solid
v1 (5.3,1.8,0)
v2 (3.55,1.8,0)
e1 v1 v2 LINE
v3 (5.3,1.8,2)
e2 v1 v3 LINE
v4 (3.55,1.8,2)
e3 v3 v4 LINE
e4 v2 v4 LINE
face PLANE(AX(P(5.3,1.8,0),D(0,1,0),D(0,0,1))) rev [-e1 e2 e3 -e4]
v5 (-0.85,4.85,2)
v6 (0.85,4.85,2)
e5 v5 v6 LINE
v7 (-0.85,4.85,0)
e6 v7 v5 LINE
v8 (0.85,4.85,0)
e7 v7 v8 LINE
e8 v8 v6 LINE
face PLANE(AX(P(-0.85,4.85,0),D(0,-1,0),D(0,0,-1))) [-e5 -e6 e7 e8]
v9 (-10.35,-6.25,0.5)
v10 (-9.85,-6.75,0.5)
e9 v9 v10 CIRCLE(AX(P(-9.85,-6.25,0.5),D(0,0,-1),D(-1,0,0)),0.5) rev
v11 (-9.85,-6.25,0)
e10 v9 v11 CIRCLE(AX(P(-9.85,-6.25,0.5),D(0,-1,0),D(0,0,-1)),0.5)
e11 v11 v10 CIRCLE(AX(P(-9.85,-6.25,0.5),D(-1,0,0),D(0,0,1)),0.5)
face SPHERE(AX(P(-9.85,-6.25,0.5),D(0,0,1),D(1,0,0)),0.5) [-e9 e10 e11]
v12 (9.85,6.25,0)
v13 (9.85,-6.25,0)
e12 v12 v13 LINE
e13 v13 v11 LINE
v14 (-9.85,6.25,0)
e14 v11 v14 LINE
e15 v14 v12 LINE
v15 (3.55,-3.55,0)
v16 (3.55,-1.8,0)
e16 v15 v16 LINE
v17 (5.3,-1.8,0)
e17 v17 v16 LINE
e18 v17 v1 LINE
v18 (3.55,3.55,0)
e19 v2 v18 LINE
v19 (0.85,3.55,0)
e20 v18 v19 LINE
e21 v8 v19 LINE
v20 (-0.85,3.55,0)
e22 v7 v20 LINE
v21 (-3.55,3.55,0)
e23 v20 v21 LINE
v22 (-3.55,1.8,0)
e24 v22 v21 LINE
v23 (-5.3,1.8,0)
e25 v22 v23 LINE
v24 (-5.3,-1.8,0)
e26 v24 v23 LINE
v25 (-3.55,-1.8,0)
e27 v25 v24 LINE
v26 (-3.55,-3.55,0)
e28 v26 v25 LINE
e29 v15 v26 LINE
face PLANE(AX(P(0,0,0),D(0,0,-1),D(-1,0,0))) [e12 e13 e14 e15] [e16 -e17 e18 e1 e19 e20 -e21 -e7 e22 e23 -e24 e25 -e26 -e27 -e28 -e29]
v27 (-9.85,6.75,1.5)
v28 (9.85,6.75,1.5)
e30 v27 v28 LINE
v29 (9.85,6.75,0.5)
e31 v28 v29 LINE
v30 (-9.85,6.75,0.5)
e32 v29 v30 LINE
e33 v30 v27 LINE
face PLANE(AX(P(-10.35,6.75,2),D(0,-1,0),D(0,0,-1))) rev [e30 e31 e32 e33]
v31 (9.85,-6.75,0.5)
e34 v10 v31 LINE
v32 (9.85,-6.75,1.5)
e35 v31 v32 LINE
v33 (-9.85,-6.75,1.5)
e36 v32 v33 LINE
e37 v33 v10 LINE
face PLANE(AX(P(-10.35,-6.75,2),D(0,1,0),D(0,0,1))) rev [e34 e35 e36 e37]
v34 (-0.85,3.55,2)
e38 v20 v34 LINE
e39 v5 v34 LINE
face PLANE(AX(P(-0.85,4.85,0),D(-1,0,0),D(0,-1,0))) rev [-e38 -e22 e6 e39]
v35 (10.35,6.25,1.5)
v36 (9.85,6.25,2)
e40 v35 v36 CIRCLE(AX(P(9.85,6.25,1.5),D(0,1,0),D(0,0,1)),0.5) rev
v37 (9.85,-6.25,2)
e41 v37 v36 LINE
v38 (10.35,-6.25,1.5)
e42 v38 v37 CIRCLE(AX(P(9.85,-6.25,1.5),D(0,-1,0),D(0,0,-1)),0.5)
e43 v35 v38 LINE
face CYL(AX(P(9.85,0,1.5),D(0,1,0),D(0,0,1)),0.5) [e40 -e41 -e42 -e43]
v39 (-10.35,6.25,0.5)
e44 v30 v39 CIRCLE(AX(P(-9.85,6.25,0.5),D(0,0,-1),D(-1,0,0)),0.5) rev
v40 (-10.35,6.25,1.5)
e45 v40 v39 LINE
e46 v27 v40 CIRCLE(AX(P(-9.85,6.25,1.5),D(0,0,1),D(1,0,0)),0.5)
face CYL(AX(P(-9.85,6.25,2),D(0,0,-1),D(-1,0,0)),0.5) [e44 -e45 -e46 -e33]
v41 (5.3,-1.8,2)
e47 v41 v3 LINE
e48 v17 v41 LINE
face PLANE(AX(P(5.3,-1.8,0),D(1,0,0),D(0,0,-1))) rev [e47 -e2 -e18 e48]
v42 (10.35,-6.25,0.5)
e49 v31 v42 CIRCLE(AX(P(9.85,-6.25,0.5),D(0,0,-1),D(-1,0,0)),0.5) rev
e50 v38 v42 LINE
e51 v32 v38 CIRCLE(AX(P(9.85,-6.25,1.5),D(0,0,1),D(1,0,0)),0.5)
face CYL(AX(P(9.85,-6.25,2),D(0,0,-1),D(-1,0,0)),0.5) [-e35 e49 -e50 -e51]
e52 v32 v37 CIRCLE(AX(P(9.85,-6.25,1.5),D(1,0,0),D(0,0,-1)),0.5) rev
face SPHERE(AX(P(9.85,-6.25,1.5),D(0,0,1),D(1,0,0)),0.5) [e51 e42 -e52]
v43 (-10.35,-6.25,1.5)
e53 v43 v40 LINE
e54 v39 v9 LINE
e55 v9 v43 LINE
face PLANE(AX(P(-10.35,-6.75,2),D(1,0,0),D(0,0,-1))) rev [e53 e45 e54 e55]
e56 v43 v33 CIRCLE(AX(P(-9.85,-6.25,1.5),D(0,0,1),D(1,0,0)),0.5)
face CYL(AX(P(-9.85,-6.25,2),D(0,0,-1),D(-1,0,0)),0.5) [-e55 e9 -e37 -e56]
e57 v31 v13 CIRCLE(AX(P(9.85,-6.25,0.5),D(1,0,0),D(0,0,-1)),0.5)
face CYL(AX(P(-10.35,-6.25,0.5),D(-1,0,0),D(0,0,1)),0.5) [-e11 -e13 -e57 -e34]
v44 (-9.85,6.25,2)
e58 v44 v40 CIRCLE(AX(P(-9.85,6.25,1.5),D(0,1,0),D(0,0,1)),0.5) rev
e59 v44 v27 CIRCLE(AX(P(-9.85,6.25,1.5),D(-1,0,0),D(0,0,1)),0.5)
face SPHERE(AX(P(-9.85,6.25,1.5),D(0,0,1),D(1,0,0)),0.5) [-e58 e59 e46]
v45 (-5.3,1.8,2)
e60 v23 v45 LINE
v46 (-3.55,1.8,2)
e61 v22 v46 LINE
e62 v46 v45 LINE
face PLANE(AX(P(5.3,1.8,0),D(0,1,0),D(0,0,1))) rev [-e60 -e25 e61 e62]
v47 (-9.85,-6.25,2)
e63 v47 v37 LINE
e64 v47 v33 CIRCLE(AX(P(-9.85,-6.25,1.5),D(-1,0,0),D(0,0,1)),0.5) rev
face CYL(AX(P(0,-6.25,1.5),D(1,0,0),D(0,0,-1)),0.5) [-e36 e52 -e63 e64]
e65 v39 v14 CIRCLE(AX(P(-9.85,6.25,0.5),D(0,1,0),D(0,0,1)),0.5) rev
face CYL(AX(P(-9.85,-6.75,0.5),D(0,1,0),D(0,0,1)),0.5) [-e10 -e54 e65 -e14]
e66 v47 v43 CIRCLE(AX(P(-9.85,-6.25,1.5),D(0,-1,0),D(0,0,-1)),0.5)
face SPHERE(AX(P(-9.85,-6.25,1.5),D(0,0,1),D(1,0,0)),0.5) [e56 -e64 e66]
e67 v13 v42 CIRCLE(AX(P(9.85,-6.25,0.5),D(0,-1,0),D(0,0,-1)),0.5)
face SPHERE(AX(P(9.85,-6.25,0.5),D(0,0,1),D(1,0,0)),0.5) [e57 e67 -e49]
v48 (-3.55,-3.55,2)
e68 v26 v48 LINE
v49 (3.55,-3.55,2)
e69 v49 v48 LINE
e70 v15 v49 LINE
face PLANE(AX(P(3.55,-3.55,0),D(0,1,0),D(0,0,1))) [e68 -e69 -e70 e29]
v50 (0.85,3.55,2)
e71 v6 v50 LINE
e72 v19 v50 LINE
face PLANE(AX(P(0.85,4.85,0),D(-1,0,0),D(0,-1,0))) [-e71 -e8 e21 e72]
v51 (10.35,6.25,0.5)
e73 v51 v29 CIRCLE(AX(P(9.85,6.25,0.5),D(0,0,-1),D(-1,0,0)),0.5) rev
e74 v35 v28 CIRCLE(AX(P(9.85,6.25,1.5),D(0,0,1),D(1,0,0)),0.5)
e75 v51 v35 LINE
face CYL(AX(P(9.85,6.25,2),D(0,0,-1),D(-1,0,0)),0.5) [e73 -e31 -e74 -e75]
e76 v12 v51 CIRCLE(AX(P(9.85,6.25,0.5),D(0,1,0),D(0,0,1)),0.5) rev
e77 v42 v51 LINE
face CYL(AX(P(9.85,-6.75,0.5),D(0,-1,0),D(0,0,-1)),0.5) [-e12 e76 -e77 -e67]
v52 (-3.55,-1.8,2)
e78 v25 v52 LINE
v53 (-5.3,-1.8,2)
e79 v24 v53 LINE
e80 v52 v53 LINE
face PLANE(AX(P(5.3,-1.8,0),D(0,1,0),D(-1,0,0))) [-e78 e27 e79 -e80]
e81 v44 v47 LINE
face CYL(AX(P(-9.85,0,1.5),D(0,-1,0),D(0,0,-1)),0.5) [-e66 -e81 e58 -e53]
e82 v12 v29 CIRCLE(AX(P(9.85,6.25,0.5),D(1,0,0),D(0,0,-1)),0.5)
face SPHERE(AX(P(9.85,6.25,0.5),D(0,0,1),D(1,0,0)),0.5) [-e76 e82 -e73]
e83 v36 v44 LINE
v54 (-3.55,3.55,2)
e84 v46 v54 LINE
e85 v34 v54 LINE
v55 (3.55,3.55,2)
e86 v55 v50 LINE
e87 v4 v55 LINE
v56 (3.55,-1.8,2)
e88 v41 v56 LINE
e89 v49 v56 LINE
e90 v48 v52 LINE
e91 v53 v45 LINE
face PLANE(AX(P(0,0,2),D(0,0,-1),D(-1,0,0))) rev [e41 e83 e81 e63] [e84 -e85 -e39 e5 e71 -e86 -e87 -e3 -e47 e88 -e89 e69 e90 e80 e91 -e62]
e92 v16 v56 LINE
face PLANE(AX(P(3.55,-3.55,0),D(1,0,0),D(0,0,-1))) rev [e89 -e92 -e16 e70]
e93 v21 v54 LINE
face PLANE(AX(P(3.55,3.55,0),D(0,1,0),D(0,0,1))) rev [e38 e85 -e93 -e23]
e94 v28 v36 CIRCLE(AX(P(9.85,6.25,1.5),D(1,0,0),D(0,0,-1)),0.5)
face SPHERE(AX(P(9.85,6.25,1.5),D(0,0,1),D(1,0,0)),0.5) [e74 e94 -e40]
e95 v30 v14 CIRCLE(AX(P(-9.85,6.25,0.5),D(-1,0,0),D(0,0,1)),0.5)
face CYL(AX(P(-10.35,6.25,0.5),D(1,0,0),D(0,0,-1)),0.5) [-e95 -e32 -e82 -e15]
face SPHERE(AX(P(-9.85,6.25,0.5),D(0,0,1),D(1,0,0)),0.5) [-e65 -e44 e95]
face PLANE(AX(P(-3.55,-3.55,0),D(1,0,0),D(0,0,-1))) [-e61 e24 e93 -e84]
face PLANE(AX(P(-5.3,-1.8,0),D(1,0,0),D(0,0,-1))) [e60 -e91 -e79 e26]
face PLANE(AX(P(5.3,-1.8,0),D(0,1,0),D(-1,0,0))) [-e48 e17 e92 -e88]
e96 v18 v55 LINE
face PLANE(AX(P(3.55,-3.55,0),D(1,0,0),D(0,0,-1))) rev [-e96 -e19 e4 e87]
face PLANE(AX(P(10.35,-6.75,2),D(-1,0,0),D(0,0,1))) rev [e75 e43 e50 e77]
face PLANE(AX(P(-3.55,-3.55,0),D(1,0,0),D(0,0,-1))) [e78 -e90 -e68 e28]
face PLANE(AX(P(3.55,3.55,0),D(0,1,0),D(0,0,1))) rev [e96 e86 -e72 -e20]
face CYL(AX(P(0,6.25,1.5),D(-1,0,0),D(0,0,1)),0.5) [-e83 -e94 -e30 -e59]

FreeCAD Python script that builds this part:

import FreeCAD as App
import Part
import Sketcher
Q = App.Units.Quantity

doc = App.newDocument("Part")
body = doc.addObject("PartDesign::Body", "Body")

sketch1 = doc.addObject("Sketcher::SketchObject", "Sketch")
body.addObject(sketch1)
sketch1.AttachmentSupport = (doc.XY_Plane, [""])
sketch1.MapMode = "FlatFace"
sketch1.addGeometry([
    Part.LineSegment(App.Vector(-10, 7, 0), App.Vector(-10, -7, 0)),
    Part.LineSegment(App.Vector(-10, -7, 0), App.Vector(10, -7, 0)),
    Part.LineSegment(App.Vector(10, -7, 0), App.Vector(10, 7, 0)),
    Part.LineSegment(App.Vector(10, 7, 0), App.Vector(-10, 7, 0)),
], False)
sketch1.addConstraint([
    Sketcher.Constraint("Coincident", 0, 2, 1, 1),
    Sketcher.Constraint("Coincident", 1, 2, 2, 1),
    Sketcher.Constraint("Coincident", 2, 2, 3, 1),
    Sketcher.Constraint("Coincident", 3, 2, 0, 1),
    Sketcher.Constraint("Vertical", 0),
    Sketcher.Constraint("Horizontal", 1),
    Sketcher.Constraint("Vertical", 2),
    Sketcher.Constraint("Horizontal", 3),
    Sketcher.Constraint("Symmetric", 0, 2, 2, 2, -1, 1),
    Sketcher.Constraint("DistanceX", 1, 1, 1, 2, Q("20.7 mm")),
    Sketcher.Constraint("DistanceY", 0, 2, 0, 1, Q("13.5 mm")),
])
pad1 = doc.addObject("PartDesign::Pad", "Pad")
body.addObject(pad1)
pad1.Profile = sketch1
pad1.Length = 2
doc.recompute()

fillet = doc.addObject("PartDesign::Fillet", "Fillet")
body.addObject(fillet)
fillet.Base = (pad1, ["Edge1"])
fillet.UseAllEdges = True
fillet.Radius = 0.5

sketch2 = doc.addObject("Sketcher::SketchObject", "Sketch001")
body.addObject(sketch2)
sketch2.AttachmentSupport = (doc.XY_Plane, [""])
sketch2.MapMode = "FlatFace"
sketch2.AttachmentOffset = App.Placement(App.Vector(0, 0, 2), App.Rotation())
sketch2.addGeometry([
    Part.LineSegment(App.Vector(-5.3, 1.8, 0), App.Vector(-5.3, -1.8, 0)),
    Part.LineSegment(App.Vector(-5.3, -1.8, 0), App.Vector(-3.5, -1.8, 0)),
    Part.LineSegment(App.Vector(-3.5, -1.8, 0), App.Vector(-3.5, -3.5, 0)),
    Part.LineSegment(App.Vector(-3.5, -3.5, 0), App.Vector(3.5, -3.5, 0)),
    Part.LineSegment(App.Vector(3.5, -3.5, 0), App.Vector(3.5, -1.8, 0)),
    Part.LineSegment(App.Vector(3.5, -1.8, 0), App.Vector(5.3, -1.8, 0)),
    Part.LineSegment(App.Vector(5.3, -1.8, 0), App.Vector(5.3, 1.8, 0)),
    Part.LineSegment(App.Vector(5.3, 1.8, 0), App.Vector(3.5, 1.8, 0)),
    Part.LineSegment(App.Vector(3.5, 1.8, 0), App.Vector(3.5, 3.5, 0)),
    Part.LineSegment(App.Vector(3.5, 3.5, 0), App.Vector(0.8, 3.5, 0)),
    Part.LineSegment(App.Vector(0.8, 3.5, 0), App.Vector(0.8, 4.8, 0)),
    Part.LineSegment(App.Vector(0.8, 4.8, 0), App.Vector(-0.8, 4.8, 0)),
    Part.LineSegment(App.Vector(-0.8, 4.8, 0), App.Vector(-0.8, 3.5, 0)),
    Part.LineSegment(App.Vector(-0.8, 3.5, 0), App.Vector(-3.5, 3.5, 0)),
    Part.LineSegment(App.Vector(-3.5, 3.5, 0), App.Vector(-3.5, 1.8, 0)),
    Part.LineSegment(App.Vector(-3.5, 1.8, 0), App.Vector(-5.3, 1.8, 0)),
], False)
sketch2.addConstraint([
    Sketcher.Constraint("Coincident", 0, 2, 1, 1),
    Sketcher.Constraint("Coincident", 1, 2, 2, 1),
    Sketcher.Constraint("Coincident", 2, 2, 3, 1),
    Sketcher.Constraint("Coincident", 3, 2, 4, 1),
    Sketcher.Constraint("Coincident", 4, 2, 5, 1),
    Sketcher.Constraint("Coincident", 5, 2, 6, 1),
    Sketcher.Constraint("Coincident", 6, 2, 7, 1),
    Sketcher.Constraint("Coincident", 7, 2, 8, 1),
    Sketcher.Constraint("Coincident", 8, 2, 9, 1),
    Sketcher.Constraint("Coincident", 9, 2, 10, 1),
    Sketcher.Constraint("Coincident", 10, 2, 11, 1),
    Sketcher.Constraint("Coincident", 11, 2, 12, 1),
    Sketcher.Constraint("Coincident", 12, 2, 13, 1),
    Sketcher.Constraint("Coincident", 13, 2, 14, 1),
    Sketcher.Constraint("Coincident", 14, 2, 15, 1),
    Sketcher.Constraint("Coincident", 15, 2, 0, 1),
    Sketcher.Constraint("Vertical", 0),
    Sketcher.Constraint("Horizontal", 1),
    Sketcher.Constraint("Vertical", 2),
    Sketcher.Constraint("Horizontal", 3),
    Sketcher.Constraint("Vertical", 4),
    Sketcher.Constraint("Horizontal", 5),
    Sketcher.Constraint("Vertical", 6),
    Sketcher.Constraint("Horizontal", 7),
    Sketcher.Constraint("Vertical", 8),
    Sketcher.Constraint("Horizontal", 9),
    Sketcher.Constraint("Vertical", 10),
    Sketcher.Constraint("Horizontal", 11),
    Sketcher.Constraint("Vertical", 12),
    Sketcher.Constraint("Horizontal", 13),
    Sketcher.Constraint("Vertical", 14),
    Sketcher.Constraint("Horizontal", 15),
    Sketcher.Constraint("Symmetric", 0, 2, 6, 2, -1, 1),
    Sketcher.Constraint("Symmetric", 2, 2, 8, 2, -1, 1),
    Sketcher.Constraint("Symmetric", 3, 2, 13, 2, -1, 1),
    Sketcher.Constraint("Symmetric", 1, 2, 4, 2, -2),
    Sketcher.Constraint("Horizontal", 7, 2, 14, 2),
    Sketcher.Constraint("Equal", 9, 13),
    Sketcher.Constraint("Equal", 15, 2),
    Sketcher.Constraint("DistanceX", 3, 1, 3, 2, Q("7.1 mm")),
    Sketcher.Constraint("DistanceX", 9, 2, 9, 1, Q("2.7 mm")),
    Sketcher.Constraint("DistanceY", 0, 2, 0, 1, Q("3.6 mm")),
    Sketcher.Constraint("DistanceY", 10, 1, 10, 2, Q("1.3 mm")),
    Sketcher.Constraint("DistanceX", 1, 1, 1, 2, Q("1.75 mm")),
])
pocket1 = doc.addObject("PartDesign::Pocket", "Pocket")
body.addObject(pocket1)
pocket1.Profile = sketch2
pocket1.Type = "ThroughAll"

doc.recompute()
